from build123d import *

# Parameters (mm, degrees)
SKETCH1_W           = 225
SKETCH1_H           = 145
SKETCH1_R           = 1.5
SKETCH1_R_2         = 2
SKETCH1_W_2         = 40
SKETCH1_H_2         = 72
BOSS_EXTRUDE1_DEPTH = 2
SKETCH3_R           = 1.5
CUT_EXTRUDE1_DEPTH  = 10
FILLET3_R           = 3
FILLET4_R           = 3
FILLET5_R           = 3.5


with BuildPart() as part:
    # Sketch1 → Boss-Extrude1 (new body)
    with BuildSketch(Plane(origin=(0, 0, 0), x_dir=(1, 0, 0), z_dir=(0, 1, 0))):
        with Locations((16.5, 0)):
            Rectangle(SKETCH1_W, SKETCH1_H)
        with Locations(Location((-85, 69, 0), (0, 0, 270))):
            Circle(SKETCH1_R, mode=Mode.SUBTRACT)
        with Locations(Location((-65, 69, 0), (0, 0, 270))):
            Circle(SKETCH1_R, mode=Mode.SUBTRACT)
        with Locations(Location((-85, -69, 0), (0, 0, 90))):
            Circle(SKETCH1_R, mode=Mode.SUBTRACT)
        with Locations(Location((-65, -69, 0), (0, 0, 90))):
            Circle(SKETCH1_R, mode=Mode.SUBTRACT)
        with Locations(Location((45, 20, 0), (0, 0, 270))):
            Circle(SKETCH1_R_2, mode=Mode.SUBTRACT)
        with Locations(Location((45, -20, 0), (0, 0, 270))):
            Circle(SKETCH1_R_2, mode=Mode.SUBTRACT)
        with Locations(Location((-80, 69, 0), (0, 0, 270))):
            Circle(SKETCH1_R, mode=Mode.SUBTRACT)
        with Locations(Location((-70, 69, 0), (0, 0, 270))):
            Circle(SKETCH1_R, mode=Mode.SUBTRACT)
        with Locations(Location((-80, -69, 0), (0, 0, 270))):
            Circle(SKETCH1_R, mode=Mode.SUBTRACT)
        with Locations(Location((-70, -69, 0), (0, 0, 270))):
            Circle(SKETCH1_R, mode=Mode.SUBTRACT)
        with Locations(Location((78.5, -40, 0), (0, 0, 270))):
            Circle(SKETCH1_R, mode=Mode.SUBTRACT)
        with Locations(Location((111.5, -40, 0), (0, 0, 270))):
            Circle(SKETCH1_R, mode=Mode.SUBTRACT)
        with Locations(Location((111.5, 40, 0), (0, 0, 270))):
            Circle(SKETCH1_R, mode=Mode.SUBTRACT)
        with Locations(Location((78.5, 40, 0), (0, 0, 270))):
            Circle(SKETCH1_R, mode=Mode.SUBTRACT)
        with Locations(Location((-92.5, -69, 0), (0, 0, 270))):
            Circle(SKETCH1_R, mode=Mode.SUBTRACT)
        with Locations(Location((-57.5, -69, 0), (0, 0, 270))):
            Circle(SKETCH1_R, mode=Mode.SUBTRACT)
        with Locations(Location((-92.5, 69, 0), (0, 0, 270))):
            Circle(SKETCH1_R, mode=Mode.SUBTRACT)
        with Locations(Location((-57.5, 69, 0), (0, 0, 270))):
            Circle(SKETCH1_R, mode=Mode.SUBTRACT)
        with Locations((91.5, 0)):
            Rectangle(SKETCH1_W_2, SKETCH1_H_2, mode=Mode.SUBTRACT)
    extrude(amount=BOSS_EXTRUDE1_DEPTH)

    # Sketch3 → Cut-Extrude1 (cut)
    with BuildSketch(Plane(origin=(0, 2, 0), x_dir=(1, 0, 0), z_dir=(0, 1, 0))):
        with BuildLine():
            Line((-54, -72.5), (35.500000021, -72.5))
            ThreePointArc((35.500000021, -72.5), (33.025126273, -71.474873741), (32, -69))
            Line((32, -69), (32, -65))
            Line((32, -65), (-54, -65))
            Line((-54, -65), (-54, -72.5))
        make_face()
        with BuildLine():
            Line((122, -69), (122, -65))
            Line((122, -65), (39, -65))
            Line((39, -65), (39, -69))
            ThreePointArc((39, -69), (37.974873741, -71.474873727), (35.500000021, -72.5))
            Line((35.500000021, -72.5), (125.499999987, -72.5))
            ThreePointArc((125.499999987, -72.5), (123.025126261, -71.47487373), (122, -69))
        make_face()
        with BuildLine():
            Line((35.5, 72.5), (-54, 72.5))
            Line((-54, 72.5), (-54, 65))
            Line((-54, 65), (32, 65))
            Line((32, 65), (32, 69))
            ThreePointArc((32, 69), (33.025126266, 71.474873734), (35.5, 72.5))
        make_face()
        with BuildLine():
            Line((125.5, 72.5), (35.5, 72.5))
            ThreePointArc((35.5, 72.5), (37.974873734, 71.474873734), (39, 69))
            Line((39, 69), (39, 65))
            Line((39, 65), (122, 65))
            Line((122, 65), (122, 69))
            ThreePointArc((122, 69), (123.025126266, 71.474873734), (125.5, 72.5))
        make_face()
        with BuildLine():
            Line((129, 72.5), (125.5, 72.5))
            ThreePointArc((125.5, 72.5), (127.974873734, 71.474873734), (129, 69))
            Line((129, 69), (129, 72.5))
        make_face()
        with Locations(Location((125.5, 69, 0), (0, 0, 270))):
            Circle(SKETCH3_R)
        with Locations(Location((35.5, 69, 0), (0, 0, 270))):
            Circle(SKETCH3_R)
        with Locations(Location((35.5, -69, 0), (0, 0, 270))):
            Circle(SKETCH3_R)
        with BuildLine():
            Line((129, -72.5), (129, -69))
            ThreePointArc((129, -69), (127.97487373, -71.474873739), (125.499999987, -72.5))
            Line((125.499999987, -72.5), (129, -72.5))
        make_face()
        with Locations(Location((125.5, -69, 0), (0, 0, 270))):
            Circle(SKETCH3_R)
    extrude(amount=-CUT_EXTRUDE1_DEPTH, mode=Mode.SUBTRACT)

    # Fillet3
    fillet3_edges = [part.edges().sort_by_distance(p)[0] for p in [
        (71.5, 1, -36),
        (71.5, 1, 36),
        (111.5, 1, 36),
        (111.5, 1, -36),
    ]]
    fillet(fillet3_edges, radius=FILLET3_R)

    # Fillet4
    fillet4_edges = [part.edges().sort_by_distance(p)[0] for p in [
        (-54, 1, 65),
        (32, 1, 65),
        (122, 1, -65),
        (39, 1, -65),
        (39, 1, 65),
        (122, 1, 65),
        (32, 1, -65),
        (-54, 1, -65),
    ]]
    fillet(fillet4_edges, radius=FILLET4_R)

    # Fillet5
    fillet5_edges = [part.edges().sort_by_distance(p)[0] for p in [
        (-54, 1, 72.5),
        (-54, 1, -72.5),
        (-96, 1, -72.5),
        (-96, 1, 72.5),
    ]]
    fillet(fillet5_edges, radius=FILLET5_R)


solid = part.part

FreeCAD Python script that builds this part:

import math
import FreeCAD as App
import Part
import Sketcher
from FreeCAD import Vector


def edges_at(feature, points):
    """Names of the edges that pass closest to the given points."""
    edges = feature.Shape.Edges
    near = lambda p: min(range(len(edges)), key=lambda i: edges[i].distToShape(Part.Vertex(*p))[0])
    return sorted({f"Edge{near(p) + 1}" for p in points})


def add_polygon(sketch, points):
    """Adds a closed chain of lines whose ends are joined by coincident constraints."""
    first, n = sketch.GeometryCount, len(points)
    for a, b in zip(points, points[1:] + points[:1]):
        sketch.addGeometry(Part.LineSegment(App.Vector(*a, 0), App.Vector(*b, 0)), False)
    for i in range(n):
        sketch.addConstraint(Sketcher.Constraint("Coincident", first + i, 2, first + (i + 1) % n, 1))

doc = App.newDocument("Part")
params = doc.addObject("Spreadsheet::Sheet", "Params")
for row, (alias, value) in enumerate([
    ("sketch1_diameter", "3 mm"),
    ("sketch1_diameter2", "4 mm"),
    ("sketch1_width", "225 mm"),
    ("sketch1_width2", "40 mm"),
    ("sketch1_height", "145 mm"),
    ("pad1_length", "2 mm"),
    ("sketch2_diameter", "3 mm"),
    ("sketch2_radius", "3.5 mm"),
    ("sketch2_width", "86 mm"),
    ("sketch2_width2", "83 mm"),
    ("sketch2_height", "4 mm"),
    ("pocket1_length", "10 mm"),
    ("fillet_radius", "3 mm"),
    ("fillet2_radius", "3 mm"),
    ("fillet3_radius", "3.5 mm"),
], start=1):
    params.set(f"A{row}", alias)
    params.set(f"B{row}", "=" + value)
    params.setAlias(f"B{row}", alias)

body = doc.addObject("PartDesign::Body", "Body")

sketch1 = doc.addObject("Sketcher::SketchObject", "Sketch")
body.addObject(sketch1)
sketch1.AttachmentSupport = (doc.XZ_Plane, [""])
sketch1.MapMode = "FlatFace"
add_polygon(sketch1, [(-96, -72.5), (-96, 72.5), (129, 72.5), (129, -72.5)])
sketch1.addGeometry(Part.Circle(Vector(-92.5, 69, 0), Vector(0, 0, 1), 1.5), False)
sketch1.addGeometry(Part.Circle(Vector(-85, 69, 0), Vector(0, 0, 1), 1.5), False)
sketch1.addGeometry(Part.Circle(Vector(-80, 69, 0), Vector(0, 0, 1), 1.5), False)
sketch1.addGeometry(Part.Circle(Vector(-70, 69, 0), Vector(0, 0, 1), 1.5), False)
sketch1.addGeometry(Part.Circle(Vector(-65, 69, 0), Vector(0, 0, 1), 1.5), False)
sketch1.addGeometry(Part.Circle(Vector(-57.5, 69, 0), Vector(0, 0, 1), 1.5), False)
sketch1.addGeometry(Part.Circle(Vector(78.5, 40, 0), Vector(0, 0, 1), 1.5), False)
sketch1.addGeometry(Part.Circle(Vector(111.5, 40, 0), Vector(0, 0, 1), 1.5), False)
sketch1.addGeometry(Part.Circle(Vector(45, 20, 0), Vector(0, 0, 1), 2), False)
sketch1.addGeometry(Part.Circle(Vector(-92.5, -69, 0), Vector(0, 0, 1), 1.5), False)
sketch1.addGeometry(Part.Circle(Vector(-85, -69, 0), Vector(0, 0, 1), 1.5), False)
sketch1.addGeometry(Part.Circle(Vector(-80, -69, 0), Vector(0, 0, 1), 1.5), False)
sketch1.addGeometry(Part.Circle(Vector(-70, -69, 0), Vector(0, 0, 1), 1.5), False)
sketch1.addGeometry(Part.Circle(Vector(-65, -69, 0), Vector(0, 0, 1), 1.5), False)
sketch1.addGeometry(Part.Circle(Vector(-57.5, -69, 0), Vector(0, 0, 1), 1.5), False)
sketch1.addGeometry(Part.Circle(Vector(45, -20, 0), Vector(0, 0, 1), 2), False)
add_polygon(sketch1, [(111.5, 36), (71.5, 36), (71.5, -36), (111.5, -36)])
sketch1.addGeometry(Part.Circle(Vector(78.5, -40, 0), Vector(0, 0, 1), 1.5), False)
sketch1.addGeometry(Part.Circle(Vector(111.5, -40, 0), Vector(0, 0, 1), 1.5), False)
sketch1.addConstraint(Sketcher.Constraint("Vertical", 0))
sketch1.addConstraint(Sketcher.Constraint("Horizontal", 1))
sketch1.addConstraint(Sketcher.Constraint("Vertical", 2))
sketch1.addConstraint(Sketcher.Constraint("Horizontal", 3))
sketch1.addConstraint(Sketcher.Constraint("Horizontal", 20))
sketch1.addConstraint(Sketcher.Constraint("Vertical", 21))
sketch1.addConstraint(Sketcher.Constraint("Horizontal", 22))
sketch1.addConstraint(Sketcher.Constraint("Vertical", 23))
sketch1.addConstraint(Sketcher.Constraint("Equal", 4, 5))
sketch1.addConstraint(Sketcher.Constraint("Equal", 5, 6))
sketch1.addConstraint(Sketcher.Constraint("Equal", 6, 7))
sketch1.addConstraint(Sketcher.Constraint("Equal", 7, 8))
sketch1.addConstraint(Sketcher.Constraint("Equal", 8, 9))
sketch1.addConstraint(Sketcher.Constraint("Equal", 9, 10))
sketch1.addConstraint(Sketcher.Constraint("Equal", 10, 11))
sketch1.addConstraint(Sketcher.Constraint("Equal", 11, 13))
sketch1.addConstraint(Sketcher.Constraint("Equal", 13, 14))
sketch1.addConstraint(Sketcher.Constraint("Equal", 14, 15))
sketch1.addConstraint(Sketcher.Constraint("Equal", 15, 16))
sketch1.addConstraint(Sketcher.Constraint("Equal", 16, 17))
sketch1.addConstraint(Sketcher.Constraint("Equal", 17, 18))
sketch1.addConstraint(Sketcher.Constraint("Equal", 12, 19))
sketch1.addConstraint(Sketcher.Constraint("Equal", 18, 24))
sketch1.addConstraint(Sketcher.Constraint("Equal", 24, 25))
sketch1.addConstraint(Sketcher.Constraint("Symmetric", 4, 3, 13, 3, -1))
sketch1.addConstraint(Sketcher.Constraint("Symmetric", 5, 3, 14, 3, -1))
sketch1.addConstraint(Sketcher.Constraint("Symmetric", 6, 3, 15, 3, -1))
sketch1.addConstraint(Sketcher.Constraint("Symmetric", 7, 3, 16, 3, -1))
sketch1.addConstraint(Sketcher.Constraint("Symmetric", 8, 3, 17, 3, -1))
sketch1.addConstraint(Sketcher.Constraint("Symmetric", 9, 3, 18, 3, -1))
sketch1.addConstraint(Sketcher.Constraint("Symmetric", 12, 3, 19, 3, -1))
sketch1.addConstraint(Sketcher.Constraint("Symmetric", 10, 3, 24, 3, -1))
sketch1.addConstraint(Sketcher.Constraint("Symmetric", 11, 3, 25, 3, -1))
sketch1.addConstraint(Sketcher.Constraint("Horizontal", 4, 3, 5, 3))
sketch1.addConstraint(Sketcher.Constraint("Horizontal", 5, 3, 6, 3))
sketch1.addConstraint(Sketcher.Constraint("Horizontal", 6, 3, 7, 3))
sketch1.addConstraint(Sketcher.Constraint("Horizontal", 7, 3, 8, 3))
sketch1.addConstraint(Sketcher.Constraint("Horizontal", 8, 3, 9, 3))
sketch1.addConstraint(Sketcher.Constraint("Horizontal", 10, 3, 11, 3))
sketch1.addConstraint(Sketcher.Constraint("Vertical", 25, 3, 22, 2))
sketch1.addConstraint(Sketcher.Constraint("Diameter", 4, 3.0))
sketch1.addConstraint(Sketcher.Constraint("Diameter", 12, 4.0))
sketch1.addConstraint(Sketcher.Constraint("DistanceX", 1, 1, 1, 2, 225.0))
sketch1.addConstraint(Sketcher.Constraint("DistanceX", 20, 2, 20, 1, 40.0))
sketch1.addConstraint(Sketcher.Constraint("DistanceY", 0, 1, 0, 2, 145.0))
sketch1.addConstraint(Sketcher.Constraint("DistanceY", 21, 2, 21, 1, 72.0))
sketch1.addConstraint(Sketcher.Constraint("DistanceY", -1, 1, 4, 3, 69.0))
sketch1.addConstraint(Sketcher.Constraint("DistanceX", 5, 3, -1, 1, 85.0))
sketch1.addConstraint(Sketcher.Constraint("DistanceX", 6, 3, -1, 1, 80.0))
sketch1.addConstraint(Sketcher.Constraint("DistanceX", 7, 3, -1, 1, 70.0))
sketch1.addConstraint(Sketcher.Constraint("DistanceX", 8, 3, -1, 1, 65.0))
sketch1.addConstraint(Sketcher.Constraint("DistanceY", -1, 1, 10, 3, 40.0))
sketch1.addConstraint(Sketcher.Constraint("DistanceX", -1, 1, 12, 3, 45.0))
sketch1.addConstraint(Sketcher.Constraint("DistanceY", -1, 1, 12, 3, 20.0))
sketch1.addConstraint(Sketcher.Constraint("DistanceX", 0, 2, -1, 1, 96.0))
sketch1.addConstraint(Sketcher.Constraint("DistanceY", -1, 1, 20, 2, 36.0))
sketch1.addConstraint(Sketcher.Constraint("DistanceX", 4, 3, 9, 3, 35.0))
sketch1.addConstraint(Sketcher.Constraint("DistanceX", 9, 3, 10, 3, 136.0))
sketch1.addConstraint(Sketcher.Constraint("DistanceX", 10, 3, 11, 3, 33.0))
sketch1.addConstraint(Sketcher.Constraint("DistanceX", 4, 3, -1, 1, 92.5))
sketch1.addConstraint(Sketcher.Constraint("DistanceY", -1, 1, 0, 2, 72.5))
sketch1.setExpression("Constraints[48]", "Params.sketch1_diameter")
sketch1.setExpression("Constraints[49]", "Params.sketch1_diameter2")
sketch1.setExpression("Constraints[50]", "Params.sketch1_width")
sketch1.setExpression("Constraints[51]", "Params.sketch1_width2")
sketch1.setExpression("Constraints[52]", "Params.sketch1_height")
pad1 = doc.addObject("PartDesign::Pad", "Pad")
body.addObject(pad1)
pad1.Profile = sketch1
pad1.setExpression("Length", "Params.pad1_length")
pad1.Reversed = True

sketch2 = doc.addObject("Sketcher::SketchObject", "Sketch001")
body.addObject(sketch2)
sketch2.AttachmentSupport = (doc.XZ_Plane, [""])
sketch2.MapMode = "FlatFace"
sketch2.AttachmentOffset = App.Placement(Vector(0, 0, -2), App.Rotation())
sketch2.addGeometry(Part.LineSegment(Vector(-54, 72.5, 0), Vector(35.5, 72.5, 0)), False)
sketch2.addGeometry(Part.ArcOfCircle(Part.Circle(Vector(35.5, 69, 0), Vector(0, 0, 1), 3.5), math.radians(90), math.radians(180)), False)
sketch2.addGeometry(Part.LineSegment(Vector(32, 69, 0), Vector(32, 65, 0)), False)
sketch2.addGeometry(Part.LineSegment(Vector(32, 65, 0), Vector(-54, 65, 0)), False)
sketch2.addGeometry(Part.LineSegment(Vector(-54, 65, 0), Vector(-54, 72.5, 0)), False)
sketch2.addGeometry(Part.LineSegment(Vector(122, 69, 0), Vector(122, 65, 0)), False)
sketch2.addGeometry(Part.LineSegment(Vector(122, 65, 0), Vector(39, 65, 0)), False)
sketch2.addGeometry(Part.LineSegment(Vector(39, 65, 0), Vector(39, 69, 0)), False)
sketch2.addGeometry(Part.ArcOfCircle(Part.Circle(Vector(35.5, 69, 0), Vector(0, 0, 1), 3.5), math.radians(0), math.radians(90)), False)
sketch2.addGeometry(Part.LineSegment(Vector(35.5, 72.5, 0), Vector(125.5, 72.5, 0)), False)
sketch2.addGeometry(Part.ArcOfCircle(Part.Circle(Vector(125.5, 69, 0), Vector(0, 0, 1), 3.5), math.radians(90), math.radians(180)), False)
sketch2.addGeometry(Part.LineSegment(Vector(35.5, -72.5, 0), Vector(-54, -72.5, 0)), False)
sketch2.addGeometry(Part.LineSegment(Vector(-54, -72.5, 0), Vector(-54, -65, 0)), False)
sketch2.addGeometry(Part.LineSegment(Vector(-54, -65, 0), Vector(32, -65, 0)), False)
sketch2.addGeometry(Part.LineSegment(Vector(32, -65, 0), Vector(32, -69, 0)), False)
sketch2.addGeometry(Part.ArcOfCircle(Part.Circle(Vector(35.5, -69, 0), Vector(0, 0, 1), 3.5), math.radians(-180), math.radians(-90)), False)
sketch2.addGeometry(Part.LineSegment(Vector(125.5, -72.5, 0), Vector(35.5, -72.5, 0)), False)
sketch2.addGeometry(Part.ArcOfCircle(Part.Circle(Vector(35.5, -69, 0), Vector(0, 0, 1), 3.5), math.radians(-90), math.radians(0)), False)
sketch2.addGeometry(Part.LineSegment(Vector(39, -69, 0), Vector(39, -65, 0)), False)
sketch2.addGeometry(Part.LineSegment(Vector(39, -65, 0), Vector(122, -65, 0)), False)
sketch2.addGeometry(Part.LineSegment(Vector(122, -65, 0), Vector(122, -69, 0)), False)
sketch2.addGeometry(Part.ArcOfCircle(Part.Circle(Vector(125.5, -69, 0), Vector(0, 0, 1), 3.5), math.radians(-180), math.radians(-90)), False)
sketch2.addGeometry(Part.LineSegment(Vector(129, -72.5, 0), Vector(125.5, -72.5, 0)), False)
sketch2.addGeometry(Part.ArcOfCircle(Part.Circle(Vector(125.5, -69, 0), Vector(0, 0, 1), 3.5), math.radians(-90), math.radians(0)), False)
sketch2.addGeometry(Part.LineSegment(Vector(129, -69, 0), Vector(129, -72.5, 0)), False)
sketch2.addGeometry(Part.Circle(Vector(125.5, -69, 0), Vector(0, 0, 1), 1.5), False)
sketch2.addGeometry(Part.Circle(Vector(35.5, -69, 0), Vector(0, 0, 1), 1.5), False)
sketch2.addGeometry(Part.Circle(Vector(35.5, 69, 0), Vector(0, 0, 1), 1.5), False)
sketch2.addGeometry(Part.LineSegment(Vector(129, 72.5, 0), Vector(129, 69, 0)), False)
sketch2.addGeometry(Part.ArcOfCircle(Part.Circle(Vector(125.5, 69, 0), Vector(0, 0, 1), 3.5), math.radians(0), math.radians(90)), False)
sketch2.addGeometry(Part.LineSegment(Vector(125.5, 72.5, 0), Vector(129, 72.5, 0)), False)
sketch2.addGeometry(Part.Circle(Vector(125.5, 69, 0), Vector(0, 0, 1), 1.5), False)
sketch2.addConstraint(Sketcher.Constraint("Tangent", 0, 2, 1, 1))
sketch2.addConstraint(Sketcher.Constraint("Tangent", 1, 2, 2, 1))
sketch2.addConstraint(Sketcher.Constraint("Coincident", 2, 2, 3, 1))
sketch2.addConstraint(Sketcher.Constraint("Coincident", 3, 2, 4, 1))
sketch2.addConstraint(Sketcher.Constraint("Coincident", 4, 2, 0, 1))
sketch2.addConstraint(Sketcher.Constraint("Coincident", 5, 2, 6, 1))
sketch2.addConstraint(Sketcher.Constraint("Coincident", 6, 2, 7, 1))
sketch2.addConstraint(Sketcher.Constraint("Tangent", 7, 2, 8, 1))
sketch2.addConstraint(Sketcher.Constraint("Tangent", 8, 2, 9, 1))
sketch2.addConstraint(Sketcher.Constraint("Tangent", 9, 2, 10, 1))
sketch2.addConstraint(Sketcher.Constraint("Tangent", 10, 2, 5, 1))
sketch2.addConstraint(Sketcher.Constraint("Coincident", 11, 2, 12, 1))
sketch2.addConstraint(Sketcher.Constraint("Coincident", 12, 2, 13, 1))
sketch2.addConstraint(Sketcher.Constraint("Coincident", 13, 2, 14, 1))
sketch2.addConstraint(Sketcher.Constraint("Tangent", 14, 2, 15, 1))
sketch2.addConstraint(Sketcher.Constraint("Tangent", 15, 2, 11, 1))
sketch2.addConstraint(Sketcher.Constraint("Tangent", 16, 2, 17, 1))
sketch2.addConstraint(Sketcher.Constraint("Tangent", 17, 2, 18, 1))
sketch2.addConstraint(Sketcher.Constraint("Coincident", 18, 2, 19, 1))
sketch2.addConstraint(Sketcher.Constraint("Coincident", 19, 2, 20, 1))
sketch2.addConstraint(Sketcher.Constraint("Tangent", 20, 2, 21, 1))
sketch2.addConstraint(Sketcher.Constraint("Tangent", 21, 2, 16, 1))
sketch2.addConstraint(Sketcher.Constraint("Tangent", 22, 2, 23, 1))
sketch2.addConstraint(Sketcher.Constraint("Tangent", 23, 2, 24, 1))
sketch2.addConstraint(Sketcher.Constraint("Coincident", 24, 2, 22, 1))
sketch2.addConstraint(Sketcher.Constraint("Tangent", 28, 2, 29, 1))
sketch2.addConstraint(Sketcher.Constraint("Tangent", 29, 2, 30, 1))
sketch2.addConstraint(Sketcher.Constraint("Coincident", 30, 2, 28, 1))
sketch2.addConstraint(Sketcher.Constraint("Horizontal", 0))
sketch2.addConstraint(Sketcher.Constraint("Vertical", 2))
sketch2.addConstraint(Sketcher.Constraint("Horizontal", 3))
sketch2.addConstraint(Sketcher.Constraint("Vertical", 4))
sketch2.addConstraint(Sketcher.Constraint("Vertical", 5))
sketch2.addConstraint(Sketcher.Constraint("Horizontal", 6))
sketch2.addConstraint(Sketcher.Constraint("Vertical", 7))
sketch2.addConstraint(Sketcher.Constraint("Horizontal", 9))
sketch2.addConstraint(Sketcher.Constraint("Horizontal", 11))
sketch2.addConstraint(Sketcher.Constraint("Vertical", 12))
sketch2.addConstraint(Sketcher.Constraint("Horizontal", 13))
sketch2.addConstraint(Sketcher.Constraint("Vertical", 14))
sketch2.addConstraint(Sketcher.Constraint("Horizontal", 16))
sketch2.addConstraint(Sketcher.Constraint("Vertical", 18))
sketch2.addConstraint(Sketcher.Constraint("Horizontal", 19))
sketch2.addConstraint(Sketcher.Constraint("Vertical", 20))
sketch2.addConstraint(Sketcher.Constraint("Horizontal", 22))
sketch2.addConstraint(Sketcher.Constraint("Vertical", 24))
sketch2.addConstraint(Sketcher.Constraint("Vertical", 28))
sketch2.addConstraint(Sketcher.Constraint("Horizontal", 30))
sketch2.addConstraint(Sketcher.Constraint("Coincident", 8, 3, 1, 3))
sketch2.addConstraint(Sketcher.Constraint("Coincident", 17, 3, 15, 3))
sketch2.addConstraint(Sketcher.Constraint("Coincident", 23, 3, 21, 3))
sketch2.addConstraint(Sketcher.Constraint("Coincident", 25, 3, 21, 3))
sketch2.addConstraint(Sketcher.Constraint("Coincident", 26, 3, 15, 3))
sketch2.addConstraint(Sketcher.Constraint("Coincident", 27, 3, 1, 3))
sketch2.addConstraint(Sketcher.Constraint("Coincident", 29, 3, 10, 3))
sketch2.addConstraint(Sketcher.Constraint("Coincident", 31, 3, 10, 3))
sketch2.addConstraint(Sketcher.Constraint("Equal", 1, 8))
sketch2.addConstraint(Sketcher.Constraint("Equal", 8, 10))
sketch2.addConstraint(Sketcher.Constraint("Equal", 10, 15))
sketch2.addConstraint(Sketcher.Constraint("Equal", 15, 17))
sketch2.addConstraint(Sketcher.Constraint("Equal", 17, 21))
sketch2.addConstraint(Sketcher.Constraint("Equal", 21, 23))
sketch2.addConstraint(Sketcher.Constraint("Equal", 25, 26))
sketch2.addConstraint(Sketcher.Constraint("Equal", 26, 27))
sketch2.addConstraint(Sketcher.Constraint("Equal", 23, 29))
sketch2.addConstraint(Sketcher.Constraint("Equal", 27, 31))
sketch2.addConstraint(Sketcher.Constraint("Symmetric", 1, 3, 15, 3, -1))
sketch2.addConstraint(Sketcher.Constraint("Symmetric", 3, 2, 12, 2, -1))
sketch2.addConstraint(Sketcher.Constraint("Symmetric", 5, 2, 19, 2, -1))
sketch2.addConstraint(Sketcher.Constraint("Horizontal", 3, 2, 5, 2))
sketch2.addConstraint(Sketcher.Constraint("Diameter", 25, 3.0))
sketch2.addConstraint(Sketcher.Constraint("Radius", 1, 3.5))
sketch2.addConstraint(Sketcher.Constraint("DistanceX", 3, 2, 3, 1, 86.0))
sketch2.addConstraint(Sketcher.Constraint("DistanceX", 6, 2, 6, 1, 83.0))
sketch2.addConstraint(Sketcher.Constraint("DistanceY", 2, 2, 2, 1, 4.0))
sketch2.addConstraint(Sketcher.Constraint("DistanceY", -1, 1, 1, 3, 69.0))
sketch2.addConstraint(Sketcher.Constraint("DistanceX", -1, 1, 1, 2, 32.0))
sketch2.setExpression("Constraints[70]", "Params.sketch2_diameter")
sketch2.setExpression("Constraints[71]", "Params.sketch2_radius")
sketch2.setExpression("Constraints[72]", "Params.sketch2_width")
sketch2.setExpression("Constraints[73]", "Params.sketch2_width2")
sketch2.setExpression("Constraints[74]", "Params.sketch2_height")
pocket1 = doc.addObject("PartDesign::Pocket", "Pocket")
body.addObject(pocket1)
pocket1.Profile = sketch2
pocket1.setExpression("Length", "Params.pocket1_length")
pocket1.Reversed = True
doc.recompute()

fillet = doc.addObject("PartDesign::Fillet", "Fillet")
body.addObject(fillet)
fillet.Base = (pocket1, edges_at(pocket1, [
    (71.5, 1, -36),
    (71.5, 1, 36),
    (111.5, 1, 36),
    (111.5, 1, -36),
]))
fillet.setExpression("Radius", "Params.fillet_radius")
doc.recompute()

fillet2 = doc.addObject("PartDesign::Fillet", "Fillet001")
body.addObject(fillet2)
fillet2.Base = (fillet, edges_at(fillet, [
    (-54, 1, 65),
    (32, 1, 65),
    (122, 1, -65),
    (39, 1, -65),
    (39, 1, 65),
    (122, 1, 65),
    (32, 1, -65),
    (-54, 1, -65),
]))
fillet2.setExpression("Radius", "Params.fillet2_radius")
doc.recompute()

fillet3 = doc.addObject("PartDesign::Fillet", "Fillet002")
body.addObject(fillet3)
fillet3.Base = (fillet2, edges_at(fillet2, [
    (-54, 1, 72.5),
    (-54, 1, -72.5),
    (-96, 1, -72.5),
    (-96, 1, 72.5),
]))
fillet3.setExpression("Radius", "Params.fillet3_radius")

doc.recompute()
